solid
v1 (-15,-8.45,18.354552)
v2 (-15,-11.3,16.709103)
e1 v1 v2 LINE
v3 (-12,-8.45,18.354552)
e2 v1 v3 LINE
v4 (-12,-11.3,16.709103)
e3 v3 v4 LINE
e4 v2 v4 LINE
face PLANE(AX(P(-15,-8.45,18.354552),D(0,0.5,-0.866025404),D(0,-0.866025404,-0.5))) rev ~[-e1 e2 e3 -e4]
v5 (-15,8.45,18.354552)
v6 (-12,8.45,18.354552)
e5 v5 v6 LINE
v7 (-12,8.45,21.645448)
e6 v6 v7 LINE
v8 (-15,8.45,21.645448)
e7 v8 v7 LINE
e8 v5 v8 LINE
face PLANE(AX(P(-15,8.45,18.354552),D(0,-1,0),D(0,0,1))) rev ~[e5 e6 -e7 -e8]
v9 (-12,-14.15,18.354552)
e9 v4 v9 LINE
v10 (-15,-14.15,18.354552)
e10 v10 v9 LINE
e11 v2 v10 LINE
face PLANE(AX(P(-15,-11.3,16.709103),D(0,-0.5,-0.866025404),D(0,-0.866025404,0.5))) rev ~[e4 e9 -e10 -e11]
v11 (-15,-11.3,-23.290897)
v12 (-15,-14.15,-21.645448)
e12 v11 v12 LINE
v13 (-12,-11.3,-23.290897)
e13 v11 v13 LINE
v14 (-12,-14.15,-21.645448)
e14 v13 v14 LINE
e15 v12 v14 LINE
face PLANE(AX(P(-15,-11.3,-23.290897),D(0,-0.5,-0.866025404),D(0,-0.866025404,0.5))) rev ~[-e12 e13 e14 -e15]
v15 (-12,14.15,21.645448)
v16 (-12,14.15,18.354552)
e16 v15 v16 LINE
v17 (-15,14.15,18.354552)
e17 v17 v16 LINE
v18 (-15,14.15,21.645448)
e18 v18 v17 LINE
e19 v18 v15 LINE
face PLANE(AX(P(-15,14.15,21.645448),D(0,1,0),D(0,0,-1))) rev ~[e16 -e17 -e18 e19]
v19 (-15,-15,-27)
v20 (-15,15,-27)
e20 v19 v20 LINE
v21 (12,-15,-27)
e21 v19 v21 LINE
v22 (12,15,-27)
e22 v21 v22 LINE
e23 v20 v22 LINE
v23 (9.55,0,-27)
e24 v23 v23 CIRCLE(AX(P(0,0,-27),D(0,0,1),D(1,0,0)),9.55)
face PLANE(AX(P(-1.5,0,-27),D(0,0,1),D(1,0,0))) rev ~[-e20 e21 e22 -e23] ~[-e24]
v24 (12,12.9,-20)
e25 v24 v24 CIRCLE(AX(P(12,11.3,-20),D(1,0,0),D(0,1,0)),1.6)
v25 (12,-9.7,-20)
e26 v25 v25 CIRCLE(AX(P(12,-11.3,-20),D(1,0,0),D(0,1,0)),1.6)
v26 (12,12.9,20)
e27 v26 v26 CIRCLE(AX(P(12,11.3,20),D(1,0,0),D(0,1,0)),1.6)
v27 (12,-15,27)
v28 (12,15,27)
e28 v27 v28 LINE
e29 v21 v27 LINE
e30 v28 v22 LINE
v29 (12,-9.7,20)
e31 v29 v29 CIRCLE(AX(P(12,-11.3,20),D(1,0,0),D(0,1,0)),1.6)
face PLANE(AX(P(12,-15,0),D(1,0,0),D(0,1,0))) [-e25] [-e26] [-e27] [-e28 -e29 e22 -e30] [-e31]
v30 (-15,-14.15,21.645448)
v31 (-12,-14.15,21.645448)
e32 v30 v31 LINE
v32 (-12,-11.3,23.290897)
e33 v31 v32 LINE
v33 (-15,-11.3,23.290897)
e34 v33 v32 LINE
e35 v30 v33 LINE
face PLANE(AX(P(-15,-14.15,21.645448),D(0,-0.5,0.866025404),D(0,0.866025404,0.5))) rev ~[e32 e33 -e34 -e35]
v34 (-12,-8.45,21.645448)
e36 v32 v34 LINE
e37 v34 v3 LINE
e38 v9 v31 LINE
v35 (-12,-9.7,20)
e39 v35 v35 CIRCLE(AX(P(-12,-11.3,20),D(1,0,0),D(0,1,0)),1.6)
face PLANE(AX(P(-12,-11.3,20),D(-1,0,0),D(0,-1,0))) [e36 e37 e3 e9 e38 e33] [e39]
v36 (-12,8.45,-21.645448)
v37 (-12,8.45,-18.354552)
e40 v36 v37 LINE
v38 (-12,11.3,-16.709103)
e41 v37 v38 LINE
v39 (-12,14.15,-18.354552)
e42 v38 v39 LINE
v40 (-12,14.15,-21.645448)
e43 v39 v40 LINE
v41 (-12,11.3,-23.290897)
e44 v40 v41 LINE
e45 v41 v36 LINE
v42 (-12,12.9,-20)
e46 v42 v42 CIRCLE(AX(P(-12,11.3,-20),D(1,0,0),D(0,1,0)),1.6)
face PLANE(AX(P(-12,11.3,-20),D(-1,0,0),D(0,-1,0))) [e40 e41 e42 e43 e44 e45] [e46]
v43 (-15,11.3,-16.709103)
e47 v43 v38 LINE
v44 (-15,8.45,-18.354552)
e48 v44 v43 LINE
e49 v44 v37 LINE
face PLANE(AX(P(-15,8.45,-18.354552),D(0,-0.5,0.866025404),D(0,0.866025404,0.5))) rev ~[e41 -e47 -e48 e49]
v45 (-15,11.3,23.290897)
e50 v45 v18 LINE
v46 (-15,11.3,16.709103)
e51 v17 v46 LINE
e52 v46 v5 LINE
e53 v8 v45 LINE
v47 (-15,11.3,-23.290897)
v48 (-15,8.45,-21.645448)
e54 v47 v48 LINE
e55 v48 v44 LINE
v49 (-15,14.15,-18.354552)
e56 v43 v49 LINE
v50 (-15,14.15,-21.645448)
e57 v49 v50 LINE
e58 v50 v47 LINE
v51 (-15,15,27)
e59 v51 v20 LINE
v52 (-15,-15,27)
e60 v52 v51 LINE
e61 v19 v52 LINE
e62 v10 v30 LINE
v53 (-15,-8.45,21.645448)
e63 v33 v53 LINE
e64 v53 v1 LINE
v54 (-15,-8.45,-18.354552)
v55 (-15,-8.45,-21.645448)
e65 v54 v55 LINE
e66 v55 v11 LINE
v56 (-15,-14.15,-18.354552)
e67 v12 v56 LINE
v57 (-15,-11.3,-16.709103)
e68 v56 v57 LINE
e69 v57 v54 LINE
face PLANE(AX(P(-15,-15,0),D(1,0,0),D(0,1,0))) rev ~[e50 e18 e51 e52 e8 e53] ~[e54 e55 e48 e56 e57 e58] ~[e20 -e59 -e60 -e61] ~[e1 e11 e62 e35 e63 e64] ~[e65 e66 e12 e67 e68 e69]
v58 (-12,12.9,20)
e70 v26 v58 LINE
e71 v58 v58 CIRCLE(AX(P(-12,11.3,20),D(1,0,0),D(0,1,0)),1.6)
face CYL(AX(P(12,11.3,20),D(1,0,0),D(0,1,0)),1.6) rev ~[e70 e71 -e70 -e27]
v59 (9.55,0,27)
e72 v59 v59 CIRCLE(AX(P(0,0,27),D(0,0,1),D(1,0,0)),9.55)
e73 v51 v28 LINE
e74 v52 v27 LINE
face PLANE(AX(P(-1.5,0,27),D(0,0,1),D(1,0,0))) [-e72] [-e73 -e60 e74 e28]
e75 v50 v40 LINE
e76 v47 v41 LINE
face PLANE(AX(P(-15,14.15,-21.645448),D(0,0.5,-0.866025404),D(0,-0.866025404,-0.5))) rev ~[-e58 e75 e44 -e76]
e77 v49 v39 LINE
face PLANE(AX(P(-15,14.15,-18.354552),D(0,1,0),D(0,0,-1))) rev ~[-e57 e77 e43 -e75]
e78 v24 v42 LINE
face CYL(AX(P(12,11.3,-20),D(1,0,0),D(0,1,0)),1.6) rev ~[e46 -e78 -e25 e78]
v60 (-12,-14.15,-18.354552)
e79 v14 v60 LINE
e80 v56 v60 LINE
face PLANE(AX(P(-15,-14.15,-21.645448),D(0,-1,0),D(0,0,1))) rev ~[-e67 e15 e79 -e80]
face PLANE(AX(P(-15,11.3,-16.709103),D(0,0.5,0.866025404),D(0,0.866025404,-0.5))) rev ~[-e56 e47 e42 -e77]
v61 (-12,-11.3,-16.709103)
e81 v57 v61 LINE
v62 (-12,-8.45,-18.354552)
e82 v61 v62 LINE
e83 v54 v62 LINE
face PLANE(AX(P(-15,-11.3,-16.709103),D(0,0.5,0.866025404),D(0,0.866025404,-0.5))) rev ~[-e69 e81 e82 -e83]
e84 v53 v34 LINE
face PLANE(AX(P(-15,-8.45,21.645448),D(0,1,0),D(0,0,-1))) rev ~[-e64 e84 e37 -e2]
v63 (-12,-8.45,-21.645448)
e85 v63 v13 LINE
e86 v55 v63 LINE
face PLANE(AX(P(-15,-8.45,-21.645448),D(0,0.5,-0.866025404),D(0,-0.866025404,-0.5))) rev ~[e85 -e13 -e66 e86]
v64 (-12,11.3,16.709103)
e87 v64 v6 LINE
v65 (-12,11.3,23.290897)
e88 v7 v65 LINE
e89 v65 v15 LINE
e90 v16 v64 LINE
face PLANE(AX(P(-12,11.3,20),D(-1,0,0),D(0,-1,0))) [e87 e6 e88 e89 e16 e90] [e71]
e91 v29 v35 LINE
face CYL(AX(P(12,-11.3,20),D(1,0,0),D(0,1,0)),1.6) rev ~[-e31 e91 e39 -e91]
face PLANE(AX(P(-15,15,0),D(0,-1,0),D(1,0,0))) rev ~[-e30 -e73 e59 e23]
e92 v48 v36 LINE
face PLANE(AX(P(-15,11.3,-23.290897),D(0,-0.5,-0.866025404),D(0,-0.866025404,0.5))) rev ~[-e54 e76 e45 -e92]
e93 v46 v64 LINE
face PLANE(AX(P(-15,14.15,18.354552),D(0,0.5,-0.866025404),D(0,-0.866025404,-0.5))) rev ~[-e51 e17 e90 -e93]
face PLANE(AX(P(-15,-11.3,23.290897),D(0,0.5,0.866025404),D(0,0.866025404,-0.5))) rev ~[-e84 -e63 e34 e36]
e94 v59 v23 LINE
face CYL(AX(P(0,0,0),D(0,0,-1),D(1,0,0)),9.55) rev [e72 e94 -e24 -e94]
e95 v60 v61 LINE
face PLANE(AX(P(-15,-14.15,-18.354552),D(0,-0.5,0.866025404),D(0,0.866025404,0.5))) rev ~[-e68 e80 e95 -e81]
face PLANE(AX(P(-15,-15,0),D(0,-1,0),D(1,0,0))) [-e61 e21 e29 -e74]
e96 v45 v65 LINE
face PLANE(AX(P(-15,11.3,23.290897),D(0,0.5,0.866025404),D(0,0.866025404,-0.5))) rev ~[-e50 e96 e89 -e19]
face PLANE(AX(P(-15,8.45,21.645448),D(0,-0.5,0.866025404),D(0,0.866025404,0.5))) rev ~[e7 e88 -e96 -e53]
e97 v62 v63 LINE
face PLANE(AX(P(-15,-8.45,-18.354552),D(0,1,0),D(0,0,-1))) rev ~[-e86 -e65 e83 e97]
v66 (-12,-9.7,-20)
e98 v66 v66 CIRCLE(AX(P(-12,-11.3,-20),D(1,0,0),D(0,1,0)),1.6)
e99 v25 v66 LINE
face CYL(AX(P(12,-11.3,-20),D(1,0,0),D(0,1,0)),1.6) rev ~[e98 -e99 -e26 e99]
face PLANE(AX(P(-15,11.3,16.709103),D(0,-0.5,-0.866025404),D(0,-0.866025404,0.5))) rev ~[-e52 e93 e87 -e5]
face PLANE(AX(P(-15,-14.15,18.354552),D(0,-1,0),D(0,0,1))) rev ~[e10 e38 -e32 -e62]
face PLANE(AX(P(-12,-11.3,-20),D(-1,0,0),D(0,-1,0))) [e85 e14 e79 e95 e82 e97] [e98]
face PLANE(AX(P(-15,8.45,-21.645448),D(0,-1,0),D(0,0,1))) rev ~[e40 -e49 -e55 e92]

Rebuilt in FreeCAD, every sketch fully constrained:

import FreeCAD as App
import Part
import Sketcher
from FreeCAD import Vector
Q = App.Units.Quantity

doc = App.newDocument("Part")
body = doc.addObject("PartDesign::Body", "Body")

# Sketch on XY plane
sketch1 = body.newObject("Sketcher::SketchObject", "Sketch")
sketch1.AttachmentSupport = (doc.getObject("XY_Plane"), [""])
sketch1.MapMode = "FlatFace"
sketch1.addGeometry([
    Part.LineSegment(Vector(-15, 15, 0), Vector(-15, -15, 0)),  # 0
    Part.LineSegment(Vector(-15, -15, 0), Vector(12, -15, 0)),  # 1
    Part.LineSegment(Vector(12, -15, 0), Vector(12, 15, 0)),  # 2
    Part.LineSegment(Vector(12, 15, 0), Vector(-15, 15, 0)),  # 3
    Part.Circle(Vector(0, 0, 0), Vector(0, 0, 1), 10),  # 4
], False)
sketch1.addConstraint([
    Sketcher.Constraint("Coincident", 0, 2, 1, 1),
    Sketcher.Constraint("Coincident", 1, 2, 2, 1),
    Sketcher.Constraint("Coincident", 2, 2, 3, 1),
    Sketcher.Constraint("Coincident", 3, 2, 0, 1),
    Sketcher.Constraint("Vertical", 0),
    Sketcher.Constraint("Horizontal", 1),
    Sketcher.Constraint("Vertical", 2),
    Sketcher.Constraint("Horizontal", 3),
    Sketcher.Constraint("Coincident", 4, 3, -1, 1),
    Sketcher.Constraint("Diameter", 4, Q("19.1 mm")),
    Sketcher.Constraint("DistanceX", 1, 1, 1, 2, Q("27 mm")),
    Sketcher.Constraint("DistanceY", 0, 2, 0, 1, Q("30 mm")),
    Sketcher.Constraint("DistanceX", 0, 2, -1, 1, Q("15 mm")),
    Sketcher.Constraint("DistanceY", 0, 2, -1, 1, Q("15 mm")),
])
pad1 = body.newObject("PartDesign::Pad", "Pad")
pad1.Profile = sketch1
pad1.Length = 54
pad1.Midplane = True

# Sketch on YZ plane
sketch2 = body.newObject("Sketcher::SketchObject", "Sketch001")
sketch2.AttachmentSupport = (doc.getObject("YZ_Plane"), [""])
sketch2.MapMode = "FlatFace"
sketch2.AttachmentOffset = App.Placement(Vector(0, 0, 12), App.Rotation())
sketch2.addGeometry([
    Part.Circle(Vector(11.3, 20, 0), Vector(0, 0, 1), 1.6),
    Part.Circle(Vector(11.3, -20, 0), Vector(0, 0, 1), 1.6),
    Part.Circle(Vector(-11.3, 20, 0), Vector(0, 0, 1), 1.6),
    Part.Circle(Vector(-11.3, -20, 0), Vector(0, 0, 1), 1.6),
], False)
sketch2.addConstraint([
    Sketcher.Constraint("Equal", 0, 1),
    Sketcher.Constraint("Equal", 1, 2),
    Sketcher.Constraint("Equal", 2, 3),
    Sketcher.Constraint("Symmetric", 1, 3, 2, 3, -1, 1),
    Sketcher.Constraint("Symmetric", 0, 3, 3, 3, -1, 1),
    Sketcher.Constraint("Symmetric", 0, 3, 2, 3, -2),
    Sketcher.Constraint("Diameter", 0, Q("3.2 mm")),
    Sketcher.Constraint("DistanceY", -1, 1, 0, 3, Q("20 mm")),
    Sketcher.Constraint("DistanceX", -1, 1, 0, 3, Q("11.3 mm")),
])
pocket1 = body.newObject("PartDesign::Pocket", "Pocket")
pocket1.Profile = sketch2
pocket1.Type = "ThroughAll"

# Sketch on YZ plane
sketch3 = body.newObject("Sketcher::SketchObject", "Sketch002")
sketch3.AttachmentSupport = (doc.getObject("YZ_Plane"), [""])
sketch3.MapMode = "FlatFace"
sketch3.AttachmentOffset = App.Placement(Vector(0, 0, -15), App.Rotation())
sketch3.addGeometry([
    Part.LineSegment(Vector(11.3, -16.7, 0), Vector(14.2, -18.4, 0)),  # 0
    Part.LineSegment(Vector(14.2, -18.4, 0), Vector(14.2, -21.6, 0)),  # 1
    Part.LineSegment(Vector(14.2, -21.6, 0), Vector(11.3, -23.3, 0)),  # 2
    Part.LineSegment(Vector(11.3, -23.3, 0), Vector(8.4, -21.6, 0)),  # 3
    Part.LineSegment(Vector(8.4, -21.6, 0), Vector(8.4, -18.4, 0)),  # 4
    Part.LineSegment(Vector(8.4, -18.4, 0), Vector(11.3, -16.7, 0)),  # 5
    Part.LineSegment(Vector(11.3, 16.7, 0), Vector(8.4, 18.4, 0)),  # 6
    Part.LineSegment(Vector(8.4, 18.4, 0), Vector(8.4, 21.6, 0)),  # 7
    Part.LineSegment(Vector(8.4, 21.6, 0), Vector(11.3, 23.3, 0)),  # 8
    Part.LineSegment(Vector(11.3, 23.3, 0), Vector(14.2, 21.6, 0)),  # 9
    Part.LineSegment(Vector(14.2, 21.6, 0), Vector(14.2, 18.4, 0)),  # 10
    Part.LineSegment(Vector(14.2, 18.4, 0), Vector(11.3, 16.7, 0)),  # 11
    Part.LineSegment(Vector(-11.3, -16.7, 0), Vector(-8.4, -18.4, 0)),  # 12
    Part.LineSegment(Vector(-8.4, -18.4, 0), Vector(-8.4, -21.6, 0)),  # 13
    Part.LineSegment(Vector(-8.4, -21.6, 0), Vector(-11.3, -23.3, 0)),  # 14
    Part.LineSegment(Vector(-11.3, -23.3, 0), Vector(-14.2, -21.6, 0)),  # 15
    Part.LineSegment(Vector(-14.2, -21.6, 0), Vector(-14.2, -18.4, 0)),  # 16
    Part.LineSegment(Vector(-14.2, -18.4, 0), Vector(-11.3, -16.7, 0)),  # 17
    Part.LineSegment(Vector(-8.4, 18.4, 0), Vector(-11.3, 16.7, 0)),  # 18
    Part.LineSegment(Vector(-11.3, 16.7, 0), Vector(-14.2, 18.4, 0)),  # 19
    Part.LineSegment(Vector(-14.2, 18.4, 0), Vector(-14.2, 21.6, 0)),  # 20
    Part.LineSegment(Vector(-14.2, 21.6, 0), Vector(-11.3, 23.3, 0)),  # 21
    Part.LineSegment(Vector(-11.3, 23.3, 0), Vector(-8.4, 21.6, 0)),  # 22
    Part.LineSegment(Vector(-8.4, 21.6, 0), Vector(-8.4, 18.4, 0)),  # 23
], False)
sketch3.addConstraint([
    Sketcher.Constraint("Coincident", 0, 2, 1, 1),
    Sketcher.Constraint("Coincident", 1, 2, 2, 1),
    Sketcher.Constraint("Coincident", 2, 2, 3, 1),
    Sketcher.Constraint("Coincident", 3, 2, 4, 1),
    Sketcher.Constraint("Coincident", 4, 2, 5, 1),
    Sketcher.Constraint("Coincident", 5, 2, 0, 1),
    Sketcher.Constraint("Coincident", 6, 2, 7, 1),
    Sketcher.Constraint("Coincident", 7, 2, 8, 1),
    Sketcher.Constraint("Coincident", 8, 2, 9, 1),
    Sketcher.Constraint("Coincident", 9, 2, 10, 1),
    Sketcher.Constraint("Coincident", 10, 2, 11, 1),
    Sketcher.Constraint("Coincident", 11, 2, 6, 1),
    Sketcher.Constraint("Coincident", 12, 2, 13, 1),
    Sketcher.Constraint("Coincident", 13, 2, 14, 1),
    Sketcher.Constraint("Coincident", 14, 2, 15, 1),
    Sketcher.Constraint("Coincident", 15, 2, 16, 1),
    Sketcher.Constraint("Coincident", 16, 2, 17, 1),
    Sketcher.Constraint("Coincident", 17, 2, 12, 1),
    Sketcher.Constraint("Coincident", 18, 2, 19, 1),
    Sketcher.Constraint("Coincident", 19, 2, 20, 1),
    Sketcher.Constraint("Coincident", 20, 2, 21, 1),
    Sketcher.Constraint("Coincident", 21, 2, 22, 1),
    Sketcher.Constraint("Coincident", 22, 2, 23, 1),
    Sketcher.Constraint("Coincident", 23, 2, 18, 1),
    Sketcher.Constraint("Vertical", 1),
    Sketcher.Constraint("Vertical", 4),
    Sketcher.Constraint("Vertical", 7),
    Sketcher.Constraint("Vertical", 10),
    Sketcher.Constraint("Vertical", 13),
    Sketcher.Constraint("Vertical", 16),
    Sketcher.Constraint("Vertical", 20),
    Sketcher.Constraint("Vertical", 23),
    Sketcher.Constraint("Symmetric", 6, 2, 12, 2, -1, 1),
    Sketcher.Constraint("Symmetric", 8, 2, 14, 2, -1, 1),
    Sketcher.Constraint("Symmetric", 9, 2, 15, 2, -1, 1),
    Sketcher.Constraint("Symmetric", 11, 2, 17, 2, -1, 1),
    Sketcher.Constraint("Symmetric", 5, 2, 18, 2, -1, 1),
    Sketcher.Constraint("Symmetric", 0, 2, 19, 2, -1, 1),
    Sketcher.Constraint("Symmetric", 2, 2, 21, 2, -1, 1),
    Sketcher.Constraint("Symmetric", 3, 2, 22, 2, -1, 1),
    Sketcher.Constraint("Symmetric", 4, 2, 12, 2, -2),
    Sketcher.Constraint("Symmetric", 2, 2, 14, 2, -2),
    Sketcher.Constraint("Symmetric", 1, 2, 15, 2, -2),
    Sketcher.Constraint("Symmetric", 5, 2, 17, 2, -2),
    Sketcher.Constraint("Parallel", 0, 3),
    Sketcher.Constraint("Parallel", 2, 5),
    Sketcher.Constraint("Parallel", 3, 6),
    Sketcher.Constraint("Parallel", 5, 8),
    Sketcher.Constraint("Parallel", 8, 11),
    Sketcher.Constraint("Parallel", 11, 14),
    Sketcher.Constraint("Parallel", 14, 17),
    Sketcher.Constraint("Parallel", 17, 18),
    Sketcher.Constraint("Parallel", 18, 21),
    Sketcher.Constraint("Horizontal", 1, 2, 3, 2),
    Sketcher.Constraint("Horizontal", 0, 2, 4, 2),
    Sketcher.Constraint("Angle", 0, Q("-30 deg")),
    Sketcher.Constraint("DistanceY", 3, 2, 6, 2, Q("40 mm")),
    Sketcher.Constraint("DistanceX", -1, 1, 2, 2, Q("11.3 mm")),
    Sketcher.Constraint("DistanceX", 3, 2, 1, 2, Q("5.7 mm")),
    Sketcher.Constraint("DistanceY", 1, 2, 1, 1, Q("3.290897 mm")),
])
pocket2 = body.newObject("PartDesign::Pocket", "Pocket001")
pocket2.Profile = sketch3
pocket2.Length = 3
pocket2.Reversed = True

doc.recompute()
